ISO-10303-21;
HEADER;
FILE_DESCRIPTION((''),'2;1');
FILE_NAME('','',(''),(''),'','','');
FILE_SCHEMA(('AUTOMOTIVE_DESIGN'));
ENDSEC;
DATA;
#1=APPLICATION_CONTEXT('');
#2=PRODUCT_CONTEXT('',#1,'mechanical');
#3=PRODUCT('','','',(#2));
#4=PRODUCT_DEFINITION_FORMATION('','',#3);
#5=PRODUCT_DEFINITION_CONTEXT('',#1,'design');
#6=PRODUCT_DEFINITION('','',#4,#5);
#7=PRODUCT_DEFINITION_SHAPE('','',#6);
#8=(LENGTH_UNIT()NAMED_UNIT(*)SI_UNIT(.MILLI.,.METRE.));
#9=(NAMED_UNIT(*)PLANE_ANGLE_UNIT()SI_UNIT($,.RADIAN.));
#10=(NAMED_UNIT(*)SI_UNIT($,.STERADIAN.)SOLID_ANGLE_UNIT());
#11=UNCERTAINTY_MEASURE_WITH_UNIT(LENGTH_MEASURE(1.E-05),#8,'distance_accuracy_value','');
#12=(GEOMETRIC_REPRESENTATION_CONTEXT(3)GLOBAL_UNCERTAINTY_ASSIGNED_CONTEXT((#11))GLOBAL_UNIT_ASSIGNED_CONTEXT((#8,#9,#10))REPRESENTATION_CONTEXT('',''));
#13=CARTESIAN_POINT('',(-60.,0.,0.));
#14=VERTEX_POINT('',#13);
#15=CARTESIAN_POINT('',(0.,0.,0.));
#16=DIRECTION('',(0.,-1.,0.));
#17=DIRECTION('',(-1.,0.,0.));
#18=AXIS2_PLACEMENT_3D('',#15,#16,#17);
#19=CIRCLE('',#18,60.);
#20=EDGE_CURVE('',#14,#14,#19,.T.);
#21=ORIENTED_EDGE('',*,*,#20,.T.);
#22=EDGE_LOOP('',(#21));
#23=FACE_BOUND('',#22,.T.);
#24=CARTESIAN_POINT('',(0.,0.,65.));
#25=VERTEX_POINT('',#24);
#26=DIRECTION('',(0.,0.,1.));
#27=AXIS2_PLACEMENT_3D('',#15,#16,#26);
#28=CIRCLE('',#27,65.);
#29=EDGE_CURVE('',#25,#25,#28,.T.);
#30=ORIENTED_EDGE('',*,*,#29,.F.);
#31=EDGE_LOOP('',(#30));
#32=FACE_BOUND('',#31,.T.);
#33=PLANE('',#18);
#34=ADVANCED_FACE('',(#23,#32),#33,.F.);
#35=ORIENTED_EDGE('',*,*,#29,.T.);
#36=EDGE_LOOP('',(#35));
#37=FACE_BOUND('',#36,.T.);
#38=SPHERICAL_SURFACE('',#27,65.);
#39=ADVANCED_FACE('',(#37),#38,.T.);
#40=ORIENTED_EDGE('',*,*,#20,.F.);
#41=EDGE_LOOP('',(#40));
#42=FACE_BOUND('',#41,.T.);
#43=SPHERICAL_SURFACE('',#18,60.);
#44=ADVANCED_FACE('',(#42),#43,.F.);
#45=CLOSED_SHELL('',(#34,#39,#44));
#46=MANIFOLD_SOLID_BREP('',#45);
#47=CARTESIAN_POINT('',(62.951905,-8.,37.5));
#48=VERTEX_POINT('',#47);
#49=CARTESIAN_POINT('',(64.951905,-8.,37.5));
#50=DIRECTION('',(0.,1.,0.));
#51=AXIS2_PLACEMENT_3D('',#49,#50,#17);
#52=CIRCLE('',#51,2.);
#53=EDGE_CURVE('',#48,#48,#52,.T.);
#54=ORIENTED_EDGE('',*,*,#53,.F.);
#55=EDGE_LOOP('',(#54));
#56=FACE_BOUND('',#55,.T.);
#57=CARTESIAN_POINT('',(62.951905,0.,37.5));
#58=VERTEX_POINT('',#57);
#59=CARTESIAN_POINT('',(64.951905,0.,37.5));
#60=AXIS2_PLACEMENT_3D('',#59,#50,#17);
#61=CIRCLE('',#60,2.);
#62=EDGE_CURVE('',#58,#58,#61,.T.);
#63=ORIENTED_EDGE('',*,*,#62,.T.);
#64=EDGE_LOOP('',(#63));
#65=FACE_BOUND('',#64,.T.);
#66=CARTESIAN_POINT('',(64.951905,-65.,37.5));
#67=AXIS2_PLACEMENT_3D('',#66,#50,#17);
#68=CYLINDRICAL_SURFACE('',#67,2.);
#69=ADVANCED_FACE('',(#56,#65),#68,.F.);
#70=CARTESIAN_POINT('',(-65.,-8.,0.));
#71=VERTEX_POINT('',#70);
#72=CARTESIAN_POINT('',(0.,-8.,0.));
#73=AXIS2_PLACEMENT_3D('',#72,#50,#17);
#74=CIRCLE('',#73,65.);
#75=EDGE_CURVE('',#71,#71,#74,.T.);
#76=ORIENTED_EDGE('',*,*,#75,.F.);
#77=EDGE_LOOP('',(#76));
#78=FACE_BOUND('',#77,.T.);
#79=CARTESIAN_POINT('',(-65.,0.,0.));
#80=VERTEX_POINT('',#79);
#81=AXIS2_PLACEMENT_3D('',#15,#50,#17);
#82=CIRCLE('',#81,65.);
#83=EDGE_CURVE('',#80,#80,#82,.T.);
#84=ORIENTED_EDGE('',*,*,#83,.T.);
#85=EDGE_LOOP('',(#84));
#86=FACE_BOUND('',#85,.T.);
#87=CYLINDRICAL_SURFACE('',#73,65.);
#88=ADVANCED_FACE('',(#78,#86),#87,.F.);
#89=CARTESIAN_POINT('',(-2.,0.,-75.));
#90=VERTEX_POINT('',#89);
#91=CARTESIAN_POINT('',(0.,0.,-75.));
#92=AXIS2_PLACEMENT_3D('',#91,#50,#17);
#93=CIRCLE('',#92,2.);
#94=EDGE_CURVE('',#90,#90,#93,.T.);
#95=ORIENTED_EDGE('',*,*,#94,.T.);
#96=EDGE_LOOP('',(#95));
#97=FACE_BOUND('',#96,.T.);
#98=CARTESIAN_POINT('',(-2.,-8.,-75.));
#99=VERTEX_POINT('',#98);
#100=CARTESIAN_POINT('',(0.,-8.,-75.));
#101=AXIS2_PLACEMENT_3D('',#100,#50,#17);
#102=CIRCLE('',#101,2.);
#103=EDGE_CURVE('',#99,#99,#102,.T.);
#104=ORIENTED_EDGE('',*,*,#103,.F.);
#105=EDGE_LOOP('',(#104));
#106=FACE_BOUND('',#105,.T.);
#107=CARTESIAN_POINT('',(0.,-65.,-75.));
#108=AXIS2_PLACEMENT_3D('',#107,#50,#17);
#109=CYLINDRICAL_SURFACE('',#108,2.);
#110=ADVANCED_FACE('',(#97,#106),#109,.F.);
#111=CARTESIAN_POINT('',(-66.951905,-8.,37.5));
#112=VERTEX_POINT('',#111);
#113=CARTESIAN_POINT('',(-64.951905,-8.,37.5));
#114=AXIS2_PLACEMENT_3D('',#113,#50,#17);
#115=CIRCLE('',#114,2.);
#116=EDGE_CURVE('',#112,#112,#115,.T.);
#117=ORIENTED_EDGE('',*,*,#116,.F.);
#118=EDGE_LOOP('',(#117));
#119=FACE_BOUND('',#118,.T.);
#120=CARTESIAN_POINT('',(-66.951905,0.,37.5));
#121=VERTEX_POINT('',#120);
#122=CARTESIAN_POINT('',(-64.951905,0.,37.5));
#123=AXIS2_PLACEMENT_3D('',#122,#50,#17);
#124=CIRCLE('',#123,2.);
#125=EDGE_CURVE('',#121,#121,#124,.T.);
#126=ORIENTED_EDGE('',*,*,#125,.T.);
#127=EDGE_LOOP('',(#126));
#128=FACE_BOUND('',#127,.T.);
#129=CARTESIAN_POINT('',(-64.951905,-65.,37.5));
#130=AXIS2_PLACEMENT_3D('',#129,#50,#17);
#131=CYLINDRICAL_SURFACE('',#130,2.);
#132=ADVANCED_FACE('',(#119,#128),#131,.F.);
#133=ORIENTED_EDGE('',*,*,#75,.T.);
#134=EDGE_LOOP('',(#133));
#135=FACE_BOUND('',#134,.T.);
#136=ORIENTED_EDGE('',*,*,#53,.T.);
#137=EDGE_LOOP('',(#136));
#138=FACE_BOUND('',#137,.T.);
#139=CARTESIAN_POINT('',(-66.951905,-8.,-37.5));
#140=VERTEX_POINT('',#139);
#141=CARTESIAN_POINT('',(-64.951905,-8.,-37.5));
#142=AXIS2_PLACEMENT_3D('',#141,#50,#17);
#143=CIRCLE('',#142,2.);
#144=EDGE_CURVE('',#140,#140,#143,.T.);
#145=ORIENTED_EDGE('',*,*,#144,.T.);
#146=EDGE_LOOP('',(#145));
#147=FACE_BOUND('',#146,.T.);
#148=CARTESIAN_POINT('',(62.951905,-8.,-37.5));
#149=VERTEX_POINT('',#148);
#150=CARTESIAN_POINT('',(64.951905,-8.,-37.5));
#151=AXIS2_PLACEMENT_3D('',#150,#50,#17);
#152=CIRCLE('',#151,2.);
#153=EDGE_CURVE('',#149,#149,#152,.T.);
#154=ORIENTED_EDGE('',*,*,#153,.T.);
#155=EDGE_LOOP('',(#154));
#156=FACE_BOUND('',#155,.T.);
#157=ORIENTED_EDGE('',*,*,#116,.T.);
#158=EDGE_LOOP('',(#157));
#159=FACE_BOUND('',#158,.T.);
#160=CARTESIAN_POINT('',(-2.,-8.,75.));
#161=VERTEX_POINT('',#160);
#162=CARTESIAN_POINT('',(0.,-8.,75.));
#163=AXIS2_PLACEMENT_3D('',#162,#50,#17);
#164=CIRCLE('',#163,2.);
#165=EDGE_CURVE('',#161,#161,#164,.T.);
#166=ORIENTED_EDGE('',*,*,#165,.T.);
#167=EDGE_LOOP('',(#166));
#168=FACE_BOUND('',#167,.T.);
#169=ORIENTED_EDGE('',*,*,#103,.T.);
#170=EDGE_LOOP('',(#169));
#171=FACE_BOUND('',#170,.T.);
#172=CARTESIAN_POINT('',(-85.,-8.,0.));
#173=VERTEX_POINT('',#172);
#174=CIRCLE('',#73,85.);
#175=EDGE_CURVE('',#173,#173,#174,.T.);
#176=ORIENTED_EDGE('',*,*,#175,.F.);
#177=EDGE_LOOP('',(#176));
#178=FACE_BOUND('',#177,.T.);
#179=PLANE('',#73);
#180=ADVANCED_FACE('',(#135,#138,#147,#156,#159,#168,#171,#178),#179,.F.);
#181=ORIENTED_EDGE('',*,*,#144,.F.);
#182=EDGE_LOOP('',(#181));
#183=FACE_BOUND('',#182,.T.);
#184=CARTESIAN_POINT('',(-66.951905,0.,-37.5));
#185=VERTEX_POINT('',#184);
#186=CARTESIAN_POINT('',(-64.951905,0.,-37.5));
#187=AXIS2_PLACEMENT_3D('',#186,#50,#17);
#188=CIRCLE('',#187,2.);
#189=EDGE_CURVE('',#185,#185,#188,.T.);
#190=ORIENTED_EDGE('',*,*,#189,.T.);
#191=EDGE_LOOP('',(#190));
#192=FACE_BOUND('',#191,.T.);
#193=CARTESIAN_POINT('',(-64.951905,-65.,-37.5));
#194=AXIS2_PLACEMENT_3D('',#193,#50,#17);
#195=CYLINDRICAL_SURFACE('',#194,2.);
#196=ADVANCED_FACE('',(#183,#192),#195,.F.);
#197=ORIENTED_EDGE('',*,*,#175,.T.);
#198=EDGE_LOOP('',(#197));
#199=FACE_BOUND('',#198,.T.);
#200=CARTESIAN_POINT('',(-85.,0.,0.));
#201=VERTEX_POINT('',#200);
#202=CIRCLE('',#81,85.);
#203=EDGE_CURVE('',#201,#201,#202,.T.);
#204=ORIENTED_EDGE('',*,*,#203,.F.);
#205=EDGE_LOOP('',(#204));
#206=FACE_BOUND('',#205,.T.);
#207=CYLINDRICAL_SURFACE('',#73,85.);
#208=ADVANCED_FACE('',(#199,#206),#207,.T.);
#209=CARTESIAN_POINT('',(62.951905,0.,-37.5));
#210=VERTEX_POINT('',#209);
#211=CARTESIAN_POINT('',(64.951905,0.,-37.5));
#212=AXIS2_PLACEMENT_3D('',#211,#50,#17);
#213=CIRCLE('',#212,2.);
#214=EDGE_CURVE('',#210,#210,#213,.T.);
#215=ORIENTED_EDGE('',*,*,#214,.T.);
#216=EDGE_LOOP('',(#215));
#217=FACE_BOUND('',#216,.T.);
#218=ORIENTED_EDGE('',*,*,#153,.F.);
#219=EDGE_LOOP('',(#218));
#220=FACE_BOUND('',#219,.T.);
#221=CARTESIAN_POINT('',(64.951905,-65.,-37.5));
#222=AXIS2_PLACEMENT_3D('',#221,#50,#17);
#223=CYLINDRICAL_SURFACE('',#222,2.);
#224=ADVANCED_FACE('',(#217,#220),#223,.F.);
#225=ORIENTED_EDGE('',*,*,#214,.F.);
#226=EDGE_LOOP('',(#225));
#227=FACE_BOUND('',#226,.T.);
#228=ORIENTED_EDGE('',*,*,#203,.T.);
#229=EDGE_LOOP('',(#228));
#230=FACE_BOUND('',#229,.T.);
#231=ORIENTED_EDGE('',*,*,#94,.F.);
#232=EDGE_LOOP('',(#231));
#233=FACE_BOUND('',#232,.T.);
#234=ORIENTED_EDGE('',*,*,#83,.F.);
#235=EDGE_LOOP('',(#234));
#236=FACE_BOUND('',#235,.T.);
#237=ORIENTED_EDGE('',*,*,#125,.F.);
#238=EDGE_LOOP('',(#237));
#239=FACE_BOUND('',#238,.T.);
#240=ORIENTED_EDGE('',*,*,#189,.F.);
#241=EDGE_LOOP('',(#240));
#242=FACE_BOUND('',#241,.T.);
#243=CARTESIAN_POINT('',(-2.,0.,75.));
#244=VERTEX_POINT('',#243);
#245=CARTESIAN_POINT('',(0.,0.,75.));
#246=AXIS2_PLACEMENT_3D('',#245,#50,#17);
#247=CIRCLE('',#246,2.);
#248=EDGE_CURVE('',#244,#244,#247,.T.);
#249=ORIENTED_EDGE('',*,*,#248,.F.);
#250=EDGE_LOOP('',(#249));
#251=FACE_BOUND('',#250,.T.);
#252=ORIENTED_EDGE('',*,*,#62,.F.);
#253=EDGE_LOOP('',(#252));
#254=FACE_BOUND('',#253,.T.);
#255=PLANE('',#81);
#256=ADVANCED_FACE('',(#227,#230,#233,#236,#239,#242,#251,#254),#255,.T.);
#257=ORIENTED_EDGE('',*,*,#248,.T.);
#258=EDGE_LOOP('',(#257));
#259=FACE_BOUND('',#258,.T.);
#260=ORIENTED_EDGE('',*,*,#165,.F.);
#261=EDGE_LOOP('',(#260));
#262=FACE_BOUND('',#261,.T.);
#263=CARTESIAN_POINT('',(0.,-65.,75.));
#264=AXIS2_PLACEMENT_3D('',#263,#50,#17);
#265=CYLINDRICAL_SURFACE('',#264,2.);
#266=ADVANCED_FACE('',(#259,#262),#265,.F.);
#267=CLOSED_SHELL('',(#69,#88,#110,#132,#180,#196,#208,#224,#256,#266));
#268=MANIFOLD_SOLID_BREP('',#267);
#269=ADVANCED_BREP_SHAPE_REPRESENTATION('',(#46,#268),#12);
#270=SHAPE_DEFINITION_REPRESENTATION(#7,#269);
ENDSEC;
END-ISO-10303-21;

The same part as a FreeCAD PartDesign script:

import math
import FreeCAD as App
import Part
import Sketcher

doc = App.newDocument("Part")
params = doc.addObject("Spreadsheet::Sheet", "Params")
for row, (alias, value) in enumerate([
    ("sketch1_radius", "65 mm"),
    ("sketch1_radius2", "60 mm"),
    ("revolution_angle", "180 deg"),
    ("sketch2_diameter", "170 mm"),
    ("sketch2_diameter2", "130 mm"),
    ("pad1_length", "8 mm"),
    ("sketch3_diameter", "4 mm"),
], start=1):
    params.set(f"A{row}", alias)
    params.set(f"B{row}", "=" + value)
    params.setAlias(f"B{row}", alias)

body = doc.addObject("PartDesign::Body", "Body")

sketch1 = doc.addObject("Sketcher::SketchObject", "Sketch")
body.addObject(sketch1)
sketch1.AttachmentSupport = (doc.XZ_Plane, [""])
sketch1.MapMode = "FlatFace"
sketch1.addGeometry(Part.ArcOfCircle(Part.Circle(App.Vector(0, 0, 0), App.Vector(0, 0, 1), 65), math.radians(-90), math.radians(90)), False)
sketch1.addGeometry(Part.LineSegment(App.Vector(0, -65, 0), App.Vector(0, -60, 0)), False)
sketch1.addGeometry(Part.ArcOfCircle(Part.Circle(App.Vector(0, 0, 0), App.Vector(0, 0, 1), 60), math.radians(-90), math.radians(90)), False)
sketch1.addGeometry(Part.LineSegment(App.Vector(0, 60, 0), App.Vector(0, 65, 0)), False)
sketch1.addConstraint(Sketcher.Constraint("Coincident", 0, 1, 1, 1))
sketch1.addConstraint(Sketcher.Constraint("Coincident", 1, 2, 2, 1))
sketch1.addConstraint(Sketcher.Constraint("Coincident", 2, 2, 3, 1))
sketch1.addConstraint(Sketcher.Constraint("Coincident", 3, 2, 0, 2))
sketch1.addConstraint(Sketcher.Constraint("Vertical", 1))
sketch1.addConstraint(Sketcher.Constraint("Vertical", 3))
sketch1.addConstraint(Sketcher.Constraint("Coincident", 0, 3, -1, 1))
sketch1.addConstraint(Sketcher.Constraint("Coincident", 2, 3, -1, 1))
sketch1.addConstraint(Sketcher.Constraint("PointOnObject", 0, 1, -2))
sketch1.addConstraint(Sketcher.Constraint("PointOnObject", 2, 2, -2))
sketch1.addConstraint(Sketcher.Constraint("Radius", 0, 65.0))
sketch1.addConstraint(Sketcher.Constraint("Radius", 2, 60.0))
sketch1.setExpression("Constraints[10]", "Params.sketch1_radius")
sketch1.setExpression("Constraints[11]", "Params.sketch1_radius2")
revolution = doc.addObject("PartDesign::Revolution", "Revolution")
body.addObject(revolution)
revolution.Profile = sketch1
revolution.ReferenceAxis = (sketch1, ["V_Axis"])
revolution.setExpression("Angle", "Params.revolution_angle")
revolution.Reversed = True
body2 = doc.addObject("PartDesign::Body", "Body001")

sketch2 = doc.addObject("Sketcher::SketchObject", "Sketch001")
body2.addObject(sketch2)
sketch2.AttachmentSupport = (doc.getObject("XZ_Plane001"), [""])
sketch2.MapMode = "FlatFace"
sketch2.addGeometry(Part.Circle(App.Vector(0, 0, 0), App.Vector(0, 0, 1), 85), False)
sketch2.addGeometry(Part.Circle(App.Vector(0, 0, 0), App.Vector(0, 0, 1), 65), False)
sketch2.addConstraint(Sketcher.Constraint("Coincident", 0, 3, -1, 1))
sketch2.addConstraint(Sketcher.Constraint("Coincident", 1, 3, -1, 1))
sketch2.addConstraint(Sketcher.Constraint("Diameter", 0, 170.0))
sketch2.addConstraint(Sketcher.Constraint("Diameter", 1, 130.0))
sketch2.setExpression("Constraints[2]", "Params.sketch2_diameter")
sketch2.setExpression("Constraints[3]", "Params.sketch2_diameter2")
pad1 = doc.addObject("PartDesign::Pad", "Pad")
body2.addObject(pad1)
pad1.Profile = sketch2
pad1.setExpression("Length", "Params.pad1_length")

sketch3 = doc.addObject("Sketcher::SketchObject", "Sketch002")
body2.addObject(sketch3)
sketch3.AttachmentSupport = (doc.getObject("XZ_Plane001"), [""])
sketch3.MapMode = "FlatFace"
sketch3.addGeometry(Part.Circle(App.Vector(0, -75, 0), App.Vector(0, 0, 1), 2), False)
sketch3.addGeometry(Part.Circle(App.Vector(65, -37.5, 0), App.Vector(0, 0, 1), 2), False)
sketch3.addGeometry(Part.Circle(App.Vector(65, 37.5, 0), App.Vector(0, 0, 1), 2), False)
sketch3.addGeometry(Part.Circle(App.Vector(0, 75, 0), App.Vector(0, 0, 1), 2), False)
sketch3.addGeometry(Part.Circle(App.Vector(-65, 37.5, 0), App.Vector(0, 0, 1), 2), False)
sketch3.addGeometry(Part.Circle(App.Vector(-65, -37.5, 0), App.Vector(0, 0, 1), 2), False)
sketch3.addConstraint(Sketcher.Constraint("Equal", 0, 1))
sketch3.addConstraint(Sketcher.Constraint("Equal", 1, 2))
sketch3.addConstraint(Sketcher.Constraint("Equal", 2, 3))
sketch3.addConstraint(Sketcher.Constraint("Equal", 3, 4))
sketch3.addConstraint(Sketcher.Constraint("Equal", 4, 5))
sketch3.addConstraint(Sketcher.Constraint("Symmetric", 0, 3, 3, 3, -1, 1))
sketch3.addConstraint(Sketcher.Constraint("Symmetric", 1, 3, 4, 3, -1, 1))
sketch3.addConstraint(Sketcher.Constraint("Symmetric", 2, 3, 5, 3, -1, 1))
sketch3.addConstraint(Sketcher.Constraint("Symmetric", 2, 3, 4, 3, -2))
sketch3.addConstraint(Sketcher.Constraint("PointOnObject", 0, 3, -2))
sketch3.addConstraint(Sketcher.Constraint("Diameter", 0, 4.0))
sketch3.addConstraint(Sketcher.Constraint("DistanceY", 0, 3, -1, 1, 75.0))
sketch3.addConstraint(Sketcher.Constraint("DistanceY", 1, 3, 2, 3, 75.0))
sketch3.addConstraint(Sketcher.Constraint("DistanceX", 4, 3, 2, 3, 129.903811))
sketch3.setExpression("Constraints[10]", "Params.sketch3_diameter")
pocket1 = doc.addObject("PartDesign::Pocket", "Pocket")
body2.addObject(pocket1)
pocket1.Profile = sketch3
pocket1.Type = "ThroughAll"
pocket1.Reversed = True

doc.recompute()
